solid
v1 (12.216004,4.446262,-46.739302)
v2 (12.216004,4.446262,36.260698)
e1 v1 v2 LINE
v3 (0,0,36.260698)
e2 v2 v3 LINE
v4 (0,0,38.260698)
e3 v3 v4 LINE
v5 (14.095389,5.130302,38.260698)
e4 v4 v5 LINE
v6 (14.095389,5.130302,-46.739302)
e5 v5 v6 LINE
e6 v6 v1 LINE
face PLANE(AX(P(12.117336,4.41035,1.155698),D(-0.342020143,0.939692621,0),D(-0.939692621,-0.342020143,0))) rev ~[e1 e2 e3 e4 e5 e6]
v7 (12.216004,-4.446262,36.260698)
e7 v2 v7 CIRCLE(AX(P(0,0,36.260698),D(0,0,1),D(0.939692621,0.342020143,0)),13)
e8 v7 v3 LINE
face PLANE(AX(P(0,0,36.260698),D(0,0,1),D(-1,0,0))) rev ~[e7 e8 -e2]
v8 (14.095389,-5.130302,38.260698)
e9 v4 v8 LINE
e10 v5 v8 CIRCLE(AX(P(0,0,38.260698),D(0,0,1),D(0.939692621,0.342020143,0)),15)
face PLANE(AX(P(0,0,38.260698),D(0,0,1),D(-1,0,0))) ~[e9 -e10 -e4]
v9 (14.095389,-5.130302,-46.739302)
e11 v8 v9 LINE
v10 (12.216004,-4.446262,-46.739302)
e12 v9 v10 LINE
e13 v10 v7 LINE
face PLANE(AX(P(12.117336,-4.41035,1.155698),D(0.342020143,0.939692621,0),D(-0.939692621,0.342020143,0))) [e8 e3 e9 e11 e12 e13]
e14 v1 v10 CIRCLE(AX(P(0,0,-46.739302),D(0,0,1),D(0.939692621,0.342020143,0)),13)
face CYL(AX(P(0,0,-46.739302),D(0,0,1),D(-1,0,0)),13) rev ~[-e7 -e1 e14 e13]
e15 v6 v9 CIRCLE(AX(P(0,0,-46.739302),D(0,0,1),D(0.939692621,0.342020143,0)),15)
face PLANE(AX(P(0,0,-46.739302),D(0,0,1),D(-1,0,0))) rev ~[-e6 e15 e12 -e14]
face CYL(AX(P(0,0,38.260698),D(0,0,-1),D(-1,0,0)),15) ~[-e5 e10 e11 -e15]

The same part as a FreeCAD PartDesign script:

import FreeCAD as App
import Part
import Sketcher


def add_polygon(sketch, points):
    """Adds a closed chain of lines whose ends are joined by coincident constraints."""
    first, n = sketch.GeometryCount, len(points)
    for a, b in zip(points, points[1:] + points[:1]):
        sketch.addGeometry(Part.LineSegment(App.Vector(*a, 0), App.Vector(*b, 0)), False)
    for i in range(n):
        sketch.addConstraint(Sketcher.Constraint("Coincident", first + i, 2, first + (i + 1) % n, 1))

doc = App.newDocument("Part")
body = doc.addObject("PartDesign::Body", "Body")

# Sketch on XZ plane
sketch1 = body.newObject("Sketcher::SketchObject", "Sketch")
sketch1.AttachmentSupport = (doc.getObject("XZ_Plane"), [""])
sketch1.MapMode = "FlatFace"
add_polygon(sketch1, [(0, 36.260698), (0, 38.260698), (-15, 38.260698), (-15, -46.739302), (-13, -46.739302), (-13, 36.260698)])  # lines 0-5
sketch1.addConstraint([
    Sketcher.Constraint("Vertical", 0),
    Sketcher.Constraint("Horizontal", 1),
    Sketcher.Constraint("Vertical", 2),
    Sketcher.Constraint("Horizontal", 3),
    Sketcher.Constraint("Vertical", 4),
    Sketcher.Constraint("Horizontal", 5),
    Sketcher.Constraint("PointOnObject", 0, 2, -2),
    Sketcher.Constraint("Equal", 3, 0),
    Sketcher.Constraint("DistanceX", 1, 2, 1, 1, 15.0),
    Sketcher.Constraint("DistanceX", 3, 1, 3, 2, 2.0),
    Sketcher.Constraint("DistanceY", 2, 2, 2, 1, 85.0),
    Sketcher.Constraint("DistanceY", -1, 1, 0, 2, 38.260698),
])
revolution = body.newObject("PartDesign::Revolution", "Revolution")
revolution.Profile = sketch1
revolution.ReferenceAxis = (sketch1, ["V_Axis"])
revolution.Angle = 160
revolution.Reversed = True

# Sketch on XZ plane
sketch2 = body.newObject("Sketcher::SketchObject", "Sketch001")
sketch2.AttachmentSupport = (doc.getObject("XZ_Plane"), [""])
sketch2.MapMode = "FlatFace"
add_polygon(sketch2, [(0, 36.260698), (0, 38.260698), (-15, 38.260698), (-15, -46.739302), (-13, -46.739302), (-13, 36.260698)])  # lines 0-5
sketch2.addConstraint([
    Sketcher.Constraint("Vertical", 0),
    Sketcher.Constraint("Horizontal", 1),
    Sketcher.Constraint("Vertical", 2),
    Sketcher.Constraint("Horizontal", 3),
    Sketcher.Constraint("Vertical", 4),
    Sketcher.Constraint("Horizontal", 5),
    Sketcher.Constraint("PointOnObject", 0, 2, -2),
    Sketcher.Constraint("Equal", 3, 0),
    Sketcher.Constraint("DistanceX", 1, 2, 1, 1, 15.0),
    Sketcher.Constraint("DistanceX", 3, 1, 3, 2, 2.0),
    Sketcher.Constraint("DistanceY", 2, 2, 2, 1, 85.0),
    Sketcher.Constraint("DistanceY", -1, 1, 0, 2, 38.260698),
])
revolution2 = body.newObject("PartDesign::Revolution", "Revolution001")
revolution2.Profile = sketch2
revolution2.ReferenceAxis = (sketch2, ["V_Axis"])
revolution2.Angle = 160

doc.recompute()
